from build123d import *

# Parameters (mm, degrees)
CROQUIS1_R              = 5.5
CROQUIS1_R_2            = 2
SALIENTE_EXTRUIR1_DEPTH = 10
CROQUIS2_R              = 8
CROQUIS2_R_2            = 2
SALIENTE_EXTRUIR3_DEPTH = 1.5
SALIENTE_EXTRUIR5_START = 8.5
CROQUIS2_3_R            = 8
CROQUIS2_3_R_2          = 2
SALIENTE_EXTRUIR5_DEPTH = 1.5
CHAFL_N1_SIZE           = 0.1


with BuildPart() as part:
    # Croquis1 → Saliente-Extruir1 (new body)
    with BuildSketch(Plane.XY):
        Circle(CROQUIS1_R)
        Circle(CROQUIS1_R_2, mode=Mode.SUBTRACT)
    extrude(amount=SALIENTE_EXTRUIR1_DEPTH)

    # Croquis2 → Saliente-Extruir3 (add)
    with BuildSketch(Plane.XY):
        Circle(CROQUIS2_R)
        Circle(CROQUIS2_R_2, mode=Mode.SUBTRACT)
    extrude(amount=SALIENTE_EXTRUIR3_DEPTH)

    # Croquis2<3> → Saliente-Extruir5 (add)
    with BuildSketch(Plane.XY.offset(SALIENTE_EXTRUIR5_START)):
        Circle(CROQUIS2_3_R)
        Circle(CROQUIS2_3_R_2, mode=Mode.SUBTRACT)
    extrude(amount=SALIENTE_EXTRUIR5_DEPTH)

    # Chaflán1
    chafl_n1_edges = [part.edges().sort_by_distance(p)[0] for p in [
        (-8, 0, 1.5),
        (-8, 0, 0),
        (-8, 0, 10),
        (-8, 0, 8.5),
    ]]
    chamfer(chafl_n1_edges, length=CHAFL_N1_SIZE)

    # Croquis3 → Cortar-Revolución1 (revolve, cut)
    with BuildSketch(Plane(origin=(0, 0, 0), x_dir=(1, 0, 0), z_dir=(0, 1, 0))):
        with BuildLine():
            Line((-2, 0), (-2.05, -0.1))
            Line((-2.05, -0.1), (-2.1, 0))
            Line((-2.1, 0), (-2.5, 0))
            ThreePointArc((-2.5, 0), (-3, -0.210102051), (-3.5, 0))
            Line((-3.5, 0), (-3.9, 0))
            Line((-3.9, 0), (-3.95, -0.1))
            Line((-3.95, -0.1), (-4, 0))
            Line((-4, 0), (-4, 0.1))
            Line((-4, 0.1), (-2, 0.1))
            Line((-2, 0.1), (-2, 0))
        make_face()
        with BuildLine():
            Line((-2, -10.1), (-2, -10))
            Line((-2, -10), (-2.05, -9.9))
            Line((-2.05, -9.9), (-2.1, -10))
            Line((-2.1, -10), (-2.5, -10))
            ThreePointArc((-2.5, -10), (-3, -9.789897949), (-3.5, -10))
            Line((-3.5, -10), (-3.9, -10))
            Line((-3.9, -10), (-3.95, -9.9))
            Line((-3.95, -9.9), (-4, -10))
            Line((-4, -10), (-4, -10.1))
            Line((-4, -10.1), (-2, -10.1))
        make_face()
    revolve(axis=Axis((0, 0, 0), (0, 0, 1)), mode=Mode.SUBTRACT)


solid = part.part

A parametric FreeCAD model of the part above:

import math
import FreeCAD as App
import Part
import Sketcher


def edges_at(feature, points):
    """Names of the edges that pass closest to the given points."""
    edges = feature.Shape.Edges
    near = lambda p: min(range(len(edges)), key=lambda i: edges[i].distToShape(Part.Vertex(*p))[0])
    return sorted({f"Edge{near(p) + 1}" for p in points})

doc = App.newDocument("Part")
body = doc.addObject("PartDesign::Body", "Body")

# Sketch on XY plane
sketch1 = body.newObject("Sketcher::SketchObject", "Sketch")
sketch1.AttachmentSupport = (doc.getObject("XY_Plane"), [""])
sketch1.MapMode = "FlatFace"
sketch1.addGeometry([
    Part.Circle(App.Vector(0, 0, 0), App.Vector(0, 0, 1), 5.5),
    Part.Circle(App.Vector(0, 0, 0), App.Vector(0, 0, 1), 2),
], False)
sketch1.addConstraint([
    Sketcher.Constraint("Coincident", 0, 3, -1, 1),
    Sketcher.Constraint("Coincident", 1, 3, -1, 1),
    Sketcher.Constraint("Diameter", 0, 11.0),
    Sketcher.Constraint("Diameter", 1, 4.0),
])
pad1 = body.newObject("PartDesign::Pad", "Pad")
pad1.Profile = sketch1
pad1.Length = 10

# Sketch on XY plane
sketch2 = body.newObject("Sketcher::SketchObject", "Sketch001")
sketch2.AttachmentSupport = (doc.getObject("XY_Plane"), [""])
sketch2.MapMode = "FlatFace"
sketch2.addGeometry([
    Part.Circle(App.Vector(0, 0, 0), App.Vector(0, 0, 1), 8),
    Part.Circle(App.Vector(0, 0, 0), App.Vector(0, 0, 1), 2),
], False)
sketch2.addConstraint([
    Sketcher.Constraint("Coincident", 0, 3, -1, 1),
    Sketcher.Constraint("Coincident", 1, 3, -1, 1),
    Sketcher.Constraint("Diameter", 0, 16.0),
    Sketcher.Constraint("Diameter", 1, 4.0),
])
pad2 = body.newObject("PartDesign::Pad", "Pad001")
pad2.Profile = sketch2
pad2.Length = 1.5

# Sketch on XY plane
sketch3 = body.newObject("Sketcher::SketchObject", "Sketch002")
sketch3.AttachmentSupport = (doc.getObject("XY_Plane"), [""])
sketch3.MapMode = "FlatFace"
sketch3.AttachmentOffset = App.Placement(App.Vector(0, 0, 8.5), App.Rotation())
sketch3.addGeometry([
    Part.Circle(App.Vector(0, 0, 0), App.Vector(0, 0, 1), 8),
    Part.Circle(App.Vector(0, 0, 0), App.Vector(0, 0, 1), 2),
], False)
sketch3.addConstraint([
    Sketcher.Constraint("Coincident", 0, 3, -1, 1),
    Sketcher.Constraint("Coincident", 1, 3, -1, 1),
    Sketcher.Constraint("Diameter", 0, 16.0),
    Sketcher.Constraint("Diameter", 1, 4.0),
])
pad3 = body.newObject("PartDesign::Pad", "Pad002")
pad3.Profile = sketch3
pad3.Length = 1.5
doc.recompute()

chamfer = body.newObject("PartDesign::Chamfer", "Chamfer")
chamfer.Base = (pad3, edges_at(pad3, [
    (-8, 0, 1.5),
    (-8, 0, 0),
    (-8, 0, 10),
    (-8, 0, 8.5),
]))
chamfer.Size = 0.1

# Sketch on XZ plane
sketch4 = body.newObject("Sketcher::SketchObject", "Sketch003")
sketch4.AttachmentSupport = (doc.getObject("XZ_Plane"), [""])
sketch4.MapMode = "FlatFace"
sketch4.addGeometry([
    Part.LineSegment(App.Vector(-2.05, 0.1, 0), App.Vector(-2, 0, 0)),  # 0
    Part.LineSegment(App.Vector(-2, 0, 0), App.Vector(-2, -0.1, 0)),  # 1
    Part.LineSegment(App.Vector(-2, -0.1, 0), App.Vector(-4, -0.1, 0)),  # 2
    Part.LineSegment(App.Vector(-4, -0.1, 0), App.Vector(-4, 0, 0)),  # 3
    Part.LineSegment(App.Vector(-4, 0, 0), App.Vector(-3.95, 0.1, 0)),  # 4
    Part.LineSegment(App.Vector(-3.95, 0.1, 0), App.Vector(-3.9, 0, 0)),  # 5
    Part.LineSegment(App.Vector(-3.9, 0, 0), App.Vector(-3.5, 0, 0)),  # 6
    Part.ArcOfCircle(Part.Circle(App.Vector(-3, -0.49, 0), App.Vector(0, 0, 1), 0.7), math.radians(44), math.radians(136)),  # 7
    Part.LineSegment(App.Vector(-2.5, 0, 0), App.Vector(-2.1, 0, 0)),  # 8
    Part.LineSegment(App.Vector(-2.1, 0, 0), App.Vector(-2.05, 0.1, 0)),  # 9
    Part.LineSegment(App.Vector(-2, 10.1, 0), App.Vector(-2, 10, 0)),  # 10
    Part.LineSegment(App.Vector(-2, 10, 0), App.Vector(-2.05, 9.9, 0)),  # 11
    Part.LineSegment(App.Vector(-2.05, 9.9, 0), App.Vector(-2.1, 10, 0)),  # 12
    Part.LineSegment(App.Vector(-2.1, 10, 0), App.Vector(-2.5, 10, 0)),  # 13
    Part.ArcOfCircle(Part.Circle(App.Vector(-3, 10.49, 0), App.Vector(0, 0, 1), 0.7), math.radians(-136), math.radians(-44)),  # 14
    Part.LineSegment(App.Vector(-3.5, 10, 0), App.Vector(-3.9, 10, 0)),  # 15
    Part.LineSegment(App.Vector(-3.9, 10, 0), App.Vector(-3.95, 9.9, 0)),  # 16
    Part.LineSegment(App.Vector(-3.95, 9.9, 0), App.Vector(-4, 10, 0)),  # 17
    Part.LineSegment(App.Vector(-4, 10, 0), App.Vector(-4, 10.1, 0)),  # 18
    Part.LineSegment(App.Vector(-4, 10.1, 0), App.Vector(-2, 10.1, 0)),  # 19
], False)
sketch4.addConstraint([
    Sketcher.Constraint("Coincident", 0, 2, 1, 1),
    Sketcher.Constraint("Coincident", 1, 2, 2, 1),
    Sketcher.Constraint("Coincident", 2, 2, 3, 1),
    Sketcher.Constraint("Coincident", 3, 2, 4, 1),
    Sketcher.Constraint("Coincident", 4, 2, 5, 1),
    Sketcher.Constraint("Coincident", 5, 2, 6, 1),
    Sketcher.Constraint("Coincident", 6, 2, 7, 2),
    Sketcher.Constraint("Coincident", 7, 1, 8, 1),
    Sketcher.Constraint("Coincident", 8, 2, 9, 1),
    Sketcher.Constraint("Coincident", 9, 2, 0, 1),
    Sketcher.Constraint("Coincident", 10, 2, 11, 1),
    Sketcher.Constraint("Coincident", 11, 2, 12, 1),
    Sketcher.Constraint("Coincident", 12, 2, 13, 1),
    Sketcher.Constraint("Coincident", 13, 2, 14, 2),
    Sketcher.Constraint("Coincident", 14, 1, 15, 1),
    Sketcher.Constraint("Coincident", 15, 2, 16, 1),
    Sketcher.Constraint("Coincident", 16, 2, 17, 1),
    Sketcher.Constraint("Coincident", 17, 2, 18, 1),
    Sketcher.Constraint("Coincident", 18, 2, 19, 1),
    Sketcher.Constraint("Coincident", 19, 2, 10, 1),
    Sketcher.Constraint("Vertical", 1),
    Sketcher.Constraint("Horizontal", 2),
    Sketcher.Constraint("Vertical", 3),
    Sketcher.Constraint("Horizontal", 6),
    Sketcher.Constraint("Horizontal", 8),
    Sketcher.Constraint("Vertical", 10),
    Sketcher.Constraint("Horizontal", 13),
    Sketcher.Constraint("Horizontal", 15),
    Sketcher.Constraint("Vertical", 18),
    Sketcher.Constraint("Horizontal", 19),
    Sketcher.Constraint("Equal", 7, 14),
    Sketcher.Constraint("PointOnObject", 0, 2, -1),
    Sketcher.Constraint("PointOnObject", 3, 2, -1),
    Sketcher.Constraint("PointOnObject", 5, 2, -1),
    Sketcher.Constraint("PointOnObject", 7, 1, -1),
    Sketcher.Constraint("Parallel", 0, 5),
    Sketcher.Constraint("Parallel", 4, 9),
    Sketcher.Constraint("Parallel", 9, 11),
    Sketcher.Constraint("Parallel", 5, 12),
    Sketcher.Constraint("Parallel", 11, 16),
    Sketcher.Constraint("Parallel", 12, 17),
    Sketcher.Constraint("Horizontal", 4, 2, 9, 2),
    Sketcher.Constraint("Horizontal", 10, 2, 12, 2),
    Sketcher.Constraint("Horizontal", 13, 2, 14, 1),
    Sketcher.Constraint("Horizontal", 11, 2, 16, 2),
    Sketcher.Constraint("Horizontal", 15, 2, 17, 2),
    Sketcher.Constraint("Vertical", 7, 3, 14, 3),
    Sketcher.Constraint("Vertical", 1, 2, 10, 2),
    Sketcher.Constraint("Vertical", 9, 2, 11, 2),
    Sketcher.Constraint("Vertical", 8, 2, 12, 2),
    Sketcher.Constraint("Vertical", 7, 1, 13, 2),
    Sketcher.Constraint("Vertical", 5, 2, 15, 2),
    Sketcher.Constraint("Equal", 6, 8),
    Sketcher.Constraint("Equal", 3, 10),
    Sketcher.Constraint("Radius", 7, 0.7),
    Sketcher.Constraint("DistanceX", 2, 2, 2, 1, 2.0),
    Sketcher.Constraint("DistanceX", 6, 1, 6, 2, 0.4),
    Sketcher.Constraint("DistanceY", 1, 2, 1, 1, 0.1),
    Sketcher.Constraint("DistanceX", 7, 3, -1, 1, 3.0),
    Sketcher.Constraint("DistanceY", -1, 1, 10, 2, 10.0),
    Sketcher.Constraint("DistanceX", 6, 2, 7, 1, 1.0),
    Sketcher.Constraint("DistanceY", -1, 1, 4, 2, 0.1),
])
groove = body.newObject("PartDesign::Groove", "Groove")
groove.Profile = sketch4
groove.ReferenceAxis = (sketch4, ["V_Axis"])
groove.Angle = 360

doc.recompute()
